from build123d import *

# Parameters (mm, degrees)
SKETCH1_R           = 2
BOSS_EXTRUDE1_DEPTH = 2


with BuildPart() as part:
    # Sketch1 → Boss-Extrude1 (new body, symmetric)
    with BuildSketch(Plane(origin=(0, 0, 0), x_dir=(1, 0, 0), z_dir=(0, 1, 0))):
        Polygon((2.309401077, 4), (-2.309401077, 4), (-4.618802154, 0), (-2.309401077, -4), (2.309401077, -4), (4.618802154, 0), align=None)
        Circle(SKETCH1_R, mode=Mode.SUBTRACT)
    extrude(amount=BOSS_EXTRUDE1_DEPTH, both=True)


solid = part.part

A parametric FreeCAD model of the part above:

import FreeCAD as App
import Part
import Sketcher
Q = App.Units.Quantity

doc = App.newDocument("Part")
body = doc.addObject("PartDesign::Body", "Body")

# Sketch on XZ plane
sketch1 = body.newObject("Sketcher::SketchObject", "Sketch")
sketch1.AttachmentSupport = (doc.getObject("XZ_Plane"), [""])
sketch1.MapMode = "FlatFace"
sketch1.addGeometry(Part.LineSegment(App.Vector(2.3, -4, 0), App.Vector(-2.3, -4, 0)), False)
sketch1.addGeometry(Part.LineSegment(App.Vector(-2.3, -4, 0), App.Vector(-4.6, 0, 0)), False)
sketch1.addGeometry(Part.LineSegment(App.Vector(-4.6, 0, 0), App.Vector(-2.3, 4, 0)), False)
sketch1.addGeometry(Part.LineSegment(App.Vector(-2.3, 4, 0), App.Vector(2.3, 4, 0)), False)
sketch1.addGeometry(Part.LineSegment(App.Vector(2.3, 4, 0), App.Vector(4.6, 0, 0)), False)
sketch1.addGeometry(Part.LineSegment(App.Vector(4.6, 0, 0), App.Vector(2.3, -4, 0)), False)
sketch1.addGeometry(Part.Circle(App.Vector(0, 0, 0), App.Vector(0, 0, 1), 2), False)
sketch1.addConstraint(Sketcher.Constraint("Coincident", 0, 2, 1, 1))
sketch1.addConstraint(Sketcher.Constraint("Coincident", 1, 2, 2, 1))
sketch1.addConstraint(Sketcher.Constraint("Coincident", 2, 2, 3, 1))
sketch1.addConstraint(Sketcher.Constraint("Coincident", 3, 2, 4, 1))
sketch1.addConstraint(Sketcher.Constraint("Coincident", 4, 2, 5, 1))
sketch1.addConstraint(Sketcher.Constraint("Coincident", 5, 2, 0, 1))
sketch1.addConstraint(Sketcher.Constraint("Horizontal", 0))
sketch1.addConstraint(Sketcher.Constraint("Horizontal", 3))
sketch1.addConstraint(Sketcher.Constraint("Coincident", 6, 3, -1, 1))
sketch1.addConstraint(Sketcher.Constraint("Symmetric", 0, 2, 3, 2, -1, 1))
sketch1.addConstraint(Sketcher.Constraint("Symmetric", 1, 2, 4, 2, -1, 1))
sketch1.addConstraint(Sketcher.Constraint("PointOnObject", 1, 2, -1))
sketch1.addConstraint(Sketcher.Constraint("Parallel", 2, 5))
sketch1.addConstraint(Sketcher.Constraint("Vertical", 0, 2, 2, 2))
sketch1.addConstraint(Sketcher.Constraint("Diameter", 6, Q("4 mm")))
sketch1.addConstraint(Sketcher.Constraint("Angle", 1, Q("120 deg")))
sketch1.addConstraint(Sketcher.Constraint("DistanceY", 0, 2, -1, 1, Q("4 mm")))
sketch1.addConstraint(Sketcher.Constraint("DistanceX", 0, 2, -1, 1, Q("2.309401 mm")))
pad1 = body.newObject("PartDesign::Pad", "Pad")
pad1.Profile = sketch1
pad1.Length = 4
pad1.Midplane = True

doc.recompute()
